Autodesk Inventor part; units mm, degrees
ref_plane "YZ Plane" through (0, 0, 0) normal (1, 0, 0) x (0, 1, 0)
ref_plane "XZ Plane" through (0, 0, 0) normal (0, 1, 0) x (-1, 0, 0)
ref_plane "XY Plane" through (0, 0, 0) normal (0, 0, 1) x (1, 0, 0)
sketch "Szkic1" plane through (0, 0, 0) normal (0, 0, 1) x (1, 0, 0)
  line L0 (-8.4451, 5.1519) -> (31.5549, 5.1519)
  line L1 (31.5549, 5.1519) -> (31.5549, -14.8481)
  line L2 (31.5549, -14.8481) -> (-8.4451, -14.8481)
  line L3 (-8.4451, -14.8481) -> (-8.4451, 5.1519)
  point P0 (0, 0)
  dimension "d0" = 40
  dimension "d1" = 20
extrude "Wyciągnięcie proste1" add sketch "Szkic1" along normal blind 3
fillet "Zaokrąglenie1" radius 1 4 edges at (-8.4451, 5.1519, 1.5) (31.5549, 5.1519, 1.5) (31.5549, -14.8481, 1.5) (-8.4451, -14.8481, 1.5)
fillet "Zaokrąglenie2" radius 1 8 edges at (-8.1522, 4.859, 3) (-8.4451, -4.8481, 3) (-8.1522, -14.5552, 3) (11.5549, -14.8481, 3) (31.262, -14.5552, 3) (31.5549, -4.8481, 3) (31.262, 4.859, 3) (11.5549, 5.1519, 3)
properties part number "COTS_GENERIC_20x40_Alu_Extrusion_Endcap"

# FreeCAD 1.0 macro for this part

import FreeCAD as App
import Part
import Sketcher
from FreeCAD import Vector


def edges_at(feature, points):
    """Names of the edges that pass closest to the given points."""
    edges = feature.Shape.Edges
    near = lambda p: min(range(len(edges)), key=lambda i: edges[i].distToShape(Part.Vertex(*p))[0])
    return sorted({f"Edge{near(p) + 1}" for p in points})


def add_polygon(sketch, points):
    """Adds a closed chain of lines whose ends are joined by coincident constraints."""
    first, n = sketch.GeometryCount, len(points)
    for a, b in zip(points, points[1:] + points[:1]):
        sketch.addGeometry(Part.LineSegment(App.Vector(*a, 0), App.Vector(*b, 0)), False)
    for i in range(n):
        sketch.addConstraint(Sketcher.Constraint("Coincident", first + i, 2, first + (i + 1) % n, 1))

doc = App.newDocument("Part")
body = doc.addObject("PartDesign::Body", "Body")

# Sketch on XY plane
sketch1 = doc.addObject("Sketcher::SketchObject", "Sketch")
body.addObject(sketch1)
sketch1.AttachmentSupport = (doc.XY_Plane, [""])
sketch1.MapMode = "FlatFace"
add_polygon(sketch1, [(31.5549, 5.1519), (-8.4451, 5.1519), (-8.4451, -14.8481), (31.5549, -14.8481)])  # lines 0-3
sketch1.addConstraint(Sketcher.Constraint("Horizontal", 0))
sketch1.addConstraint(Sketcher.Constraint("Vertical", 1))
sketch1.addConstraint(Sketcher.Constraint("Horizontal", 2))
sketch1.addConstraint(Sketcher.Constraint("Vertical", 3))
sketch1.addConstraint(Sketcher.Constraint("DistanceX", 0, 2, 0, 1, 40.0))
sketch1.addConstraint(Sketcher.Constraint("DistanceY", 1, 2, 1, 1, 20.0))
sketch1.addConstraint(Sketcher.Constraint("DistanceX", 0, 2, -1, 1, 8.445))
sketch1.addConstraint(Sketcher.Constraint("DistanceY", -1, 1, 0, 2, 5.152))
pad1 = doc.addObject("PartDesign::Pad", "Pad")
body.addObject(pad1)
pad1.Profile = sketch1
pad1.Length = 3
doc.recompute()

fillet = doc.addObject("PartDesign::Fillet", "Fillet")
body.addObject(fillet)
fillet.Base = (pad1, edges_at(pad1, [
    (-8.445, 5.152, 1.5),
    (31.555, 5.152, 1.5),
    (31.555, -14.848, 1.5),
    (-8.445, -14.848, 1.5),
]))
fillet.Radius = 1
doc.recompute()

fillet2 = doc.addObject("PartDesign::Fillet", "Fillet001")
body.addObject(fillet2)
fillet2.Base = (fillet, edges_at(fillet, [
    (-8.152, 4.859, 3),
    (-8.445, -4.848, 3),
    (-8.152, -14.555, 3),
    (11.555, -14.848, 3),
    (31.262, -14.555, 3),
    (31.555, -4.848, 3),
    (31.262, 4.859, 3),
    (11.555, 5.152, 3),
]))
fillet2.Radius = 1

doc.recompute()
